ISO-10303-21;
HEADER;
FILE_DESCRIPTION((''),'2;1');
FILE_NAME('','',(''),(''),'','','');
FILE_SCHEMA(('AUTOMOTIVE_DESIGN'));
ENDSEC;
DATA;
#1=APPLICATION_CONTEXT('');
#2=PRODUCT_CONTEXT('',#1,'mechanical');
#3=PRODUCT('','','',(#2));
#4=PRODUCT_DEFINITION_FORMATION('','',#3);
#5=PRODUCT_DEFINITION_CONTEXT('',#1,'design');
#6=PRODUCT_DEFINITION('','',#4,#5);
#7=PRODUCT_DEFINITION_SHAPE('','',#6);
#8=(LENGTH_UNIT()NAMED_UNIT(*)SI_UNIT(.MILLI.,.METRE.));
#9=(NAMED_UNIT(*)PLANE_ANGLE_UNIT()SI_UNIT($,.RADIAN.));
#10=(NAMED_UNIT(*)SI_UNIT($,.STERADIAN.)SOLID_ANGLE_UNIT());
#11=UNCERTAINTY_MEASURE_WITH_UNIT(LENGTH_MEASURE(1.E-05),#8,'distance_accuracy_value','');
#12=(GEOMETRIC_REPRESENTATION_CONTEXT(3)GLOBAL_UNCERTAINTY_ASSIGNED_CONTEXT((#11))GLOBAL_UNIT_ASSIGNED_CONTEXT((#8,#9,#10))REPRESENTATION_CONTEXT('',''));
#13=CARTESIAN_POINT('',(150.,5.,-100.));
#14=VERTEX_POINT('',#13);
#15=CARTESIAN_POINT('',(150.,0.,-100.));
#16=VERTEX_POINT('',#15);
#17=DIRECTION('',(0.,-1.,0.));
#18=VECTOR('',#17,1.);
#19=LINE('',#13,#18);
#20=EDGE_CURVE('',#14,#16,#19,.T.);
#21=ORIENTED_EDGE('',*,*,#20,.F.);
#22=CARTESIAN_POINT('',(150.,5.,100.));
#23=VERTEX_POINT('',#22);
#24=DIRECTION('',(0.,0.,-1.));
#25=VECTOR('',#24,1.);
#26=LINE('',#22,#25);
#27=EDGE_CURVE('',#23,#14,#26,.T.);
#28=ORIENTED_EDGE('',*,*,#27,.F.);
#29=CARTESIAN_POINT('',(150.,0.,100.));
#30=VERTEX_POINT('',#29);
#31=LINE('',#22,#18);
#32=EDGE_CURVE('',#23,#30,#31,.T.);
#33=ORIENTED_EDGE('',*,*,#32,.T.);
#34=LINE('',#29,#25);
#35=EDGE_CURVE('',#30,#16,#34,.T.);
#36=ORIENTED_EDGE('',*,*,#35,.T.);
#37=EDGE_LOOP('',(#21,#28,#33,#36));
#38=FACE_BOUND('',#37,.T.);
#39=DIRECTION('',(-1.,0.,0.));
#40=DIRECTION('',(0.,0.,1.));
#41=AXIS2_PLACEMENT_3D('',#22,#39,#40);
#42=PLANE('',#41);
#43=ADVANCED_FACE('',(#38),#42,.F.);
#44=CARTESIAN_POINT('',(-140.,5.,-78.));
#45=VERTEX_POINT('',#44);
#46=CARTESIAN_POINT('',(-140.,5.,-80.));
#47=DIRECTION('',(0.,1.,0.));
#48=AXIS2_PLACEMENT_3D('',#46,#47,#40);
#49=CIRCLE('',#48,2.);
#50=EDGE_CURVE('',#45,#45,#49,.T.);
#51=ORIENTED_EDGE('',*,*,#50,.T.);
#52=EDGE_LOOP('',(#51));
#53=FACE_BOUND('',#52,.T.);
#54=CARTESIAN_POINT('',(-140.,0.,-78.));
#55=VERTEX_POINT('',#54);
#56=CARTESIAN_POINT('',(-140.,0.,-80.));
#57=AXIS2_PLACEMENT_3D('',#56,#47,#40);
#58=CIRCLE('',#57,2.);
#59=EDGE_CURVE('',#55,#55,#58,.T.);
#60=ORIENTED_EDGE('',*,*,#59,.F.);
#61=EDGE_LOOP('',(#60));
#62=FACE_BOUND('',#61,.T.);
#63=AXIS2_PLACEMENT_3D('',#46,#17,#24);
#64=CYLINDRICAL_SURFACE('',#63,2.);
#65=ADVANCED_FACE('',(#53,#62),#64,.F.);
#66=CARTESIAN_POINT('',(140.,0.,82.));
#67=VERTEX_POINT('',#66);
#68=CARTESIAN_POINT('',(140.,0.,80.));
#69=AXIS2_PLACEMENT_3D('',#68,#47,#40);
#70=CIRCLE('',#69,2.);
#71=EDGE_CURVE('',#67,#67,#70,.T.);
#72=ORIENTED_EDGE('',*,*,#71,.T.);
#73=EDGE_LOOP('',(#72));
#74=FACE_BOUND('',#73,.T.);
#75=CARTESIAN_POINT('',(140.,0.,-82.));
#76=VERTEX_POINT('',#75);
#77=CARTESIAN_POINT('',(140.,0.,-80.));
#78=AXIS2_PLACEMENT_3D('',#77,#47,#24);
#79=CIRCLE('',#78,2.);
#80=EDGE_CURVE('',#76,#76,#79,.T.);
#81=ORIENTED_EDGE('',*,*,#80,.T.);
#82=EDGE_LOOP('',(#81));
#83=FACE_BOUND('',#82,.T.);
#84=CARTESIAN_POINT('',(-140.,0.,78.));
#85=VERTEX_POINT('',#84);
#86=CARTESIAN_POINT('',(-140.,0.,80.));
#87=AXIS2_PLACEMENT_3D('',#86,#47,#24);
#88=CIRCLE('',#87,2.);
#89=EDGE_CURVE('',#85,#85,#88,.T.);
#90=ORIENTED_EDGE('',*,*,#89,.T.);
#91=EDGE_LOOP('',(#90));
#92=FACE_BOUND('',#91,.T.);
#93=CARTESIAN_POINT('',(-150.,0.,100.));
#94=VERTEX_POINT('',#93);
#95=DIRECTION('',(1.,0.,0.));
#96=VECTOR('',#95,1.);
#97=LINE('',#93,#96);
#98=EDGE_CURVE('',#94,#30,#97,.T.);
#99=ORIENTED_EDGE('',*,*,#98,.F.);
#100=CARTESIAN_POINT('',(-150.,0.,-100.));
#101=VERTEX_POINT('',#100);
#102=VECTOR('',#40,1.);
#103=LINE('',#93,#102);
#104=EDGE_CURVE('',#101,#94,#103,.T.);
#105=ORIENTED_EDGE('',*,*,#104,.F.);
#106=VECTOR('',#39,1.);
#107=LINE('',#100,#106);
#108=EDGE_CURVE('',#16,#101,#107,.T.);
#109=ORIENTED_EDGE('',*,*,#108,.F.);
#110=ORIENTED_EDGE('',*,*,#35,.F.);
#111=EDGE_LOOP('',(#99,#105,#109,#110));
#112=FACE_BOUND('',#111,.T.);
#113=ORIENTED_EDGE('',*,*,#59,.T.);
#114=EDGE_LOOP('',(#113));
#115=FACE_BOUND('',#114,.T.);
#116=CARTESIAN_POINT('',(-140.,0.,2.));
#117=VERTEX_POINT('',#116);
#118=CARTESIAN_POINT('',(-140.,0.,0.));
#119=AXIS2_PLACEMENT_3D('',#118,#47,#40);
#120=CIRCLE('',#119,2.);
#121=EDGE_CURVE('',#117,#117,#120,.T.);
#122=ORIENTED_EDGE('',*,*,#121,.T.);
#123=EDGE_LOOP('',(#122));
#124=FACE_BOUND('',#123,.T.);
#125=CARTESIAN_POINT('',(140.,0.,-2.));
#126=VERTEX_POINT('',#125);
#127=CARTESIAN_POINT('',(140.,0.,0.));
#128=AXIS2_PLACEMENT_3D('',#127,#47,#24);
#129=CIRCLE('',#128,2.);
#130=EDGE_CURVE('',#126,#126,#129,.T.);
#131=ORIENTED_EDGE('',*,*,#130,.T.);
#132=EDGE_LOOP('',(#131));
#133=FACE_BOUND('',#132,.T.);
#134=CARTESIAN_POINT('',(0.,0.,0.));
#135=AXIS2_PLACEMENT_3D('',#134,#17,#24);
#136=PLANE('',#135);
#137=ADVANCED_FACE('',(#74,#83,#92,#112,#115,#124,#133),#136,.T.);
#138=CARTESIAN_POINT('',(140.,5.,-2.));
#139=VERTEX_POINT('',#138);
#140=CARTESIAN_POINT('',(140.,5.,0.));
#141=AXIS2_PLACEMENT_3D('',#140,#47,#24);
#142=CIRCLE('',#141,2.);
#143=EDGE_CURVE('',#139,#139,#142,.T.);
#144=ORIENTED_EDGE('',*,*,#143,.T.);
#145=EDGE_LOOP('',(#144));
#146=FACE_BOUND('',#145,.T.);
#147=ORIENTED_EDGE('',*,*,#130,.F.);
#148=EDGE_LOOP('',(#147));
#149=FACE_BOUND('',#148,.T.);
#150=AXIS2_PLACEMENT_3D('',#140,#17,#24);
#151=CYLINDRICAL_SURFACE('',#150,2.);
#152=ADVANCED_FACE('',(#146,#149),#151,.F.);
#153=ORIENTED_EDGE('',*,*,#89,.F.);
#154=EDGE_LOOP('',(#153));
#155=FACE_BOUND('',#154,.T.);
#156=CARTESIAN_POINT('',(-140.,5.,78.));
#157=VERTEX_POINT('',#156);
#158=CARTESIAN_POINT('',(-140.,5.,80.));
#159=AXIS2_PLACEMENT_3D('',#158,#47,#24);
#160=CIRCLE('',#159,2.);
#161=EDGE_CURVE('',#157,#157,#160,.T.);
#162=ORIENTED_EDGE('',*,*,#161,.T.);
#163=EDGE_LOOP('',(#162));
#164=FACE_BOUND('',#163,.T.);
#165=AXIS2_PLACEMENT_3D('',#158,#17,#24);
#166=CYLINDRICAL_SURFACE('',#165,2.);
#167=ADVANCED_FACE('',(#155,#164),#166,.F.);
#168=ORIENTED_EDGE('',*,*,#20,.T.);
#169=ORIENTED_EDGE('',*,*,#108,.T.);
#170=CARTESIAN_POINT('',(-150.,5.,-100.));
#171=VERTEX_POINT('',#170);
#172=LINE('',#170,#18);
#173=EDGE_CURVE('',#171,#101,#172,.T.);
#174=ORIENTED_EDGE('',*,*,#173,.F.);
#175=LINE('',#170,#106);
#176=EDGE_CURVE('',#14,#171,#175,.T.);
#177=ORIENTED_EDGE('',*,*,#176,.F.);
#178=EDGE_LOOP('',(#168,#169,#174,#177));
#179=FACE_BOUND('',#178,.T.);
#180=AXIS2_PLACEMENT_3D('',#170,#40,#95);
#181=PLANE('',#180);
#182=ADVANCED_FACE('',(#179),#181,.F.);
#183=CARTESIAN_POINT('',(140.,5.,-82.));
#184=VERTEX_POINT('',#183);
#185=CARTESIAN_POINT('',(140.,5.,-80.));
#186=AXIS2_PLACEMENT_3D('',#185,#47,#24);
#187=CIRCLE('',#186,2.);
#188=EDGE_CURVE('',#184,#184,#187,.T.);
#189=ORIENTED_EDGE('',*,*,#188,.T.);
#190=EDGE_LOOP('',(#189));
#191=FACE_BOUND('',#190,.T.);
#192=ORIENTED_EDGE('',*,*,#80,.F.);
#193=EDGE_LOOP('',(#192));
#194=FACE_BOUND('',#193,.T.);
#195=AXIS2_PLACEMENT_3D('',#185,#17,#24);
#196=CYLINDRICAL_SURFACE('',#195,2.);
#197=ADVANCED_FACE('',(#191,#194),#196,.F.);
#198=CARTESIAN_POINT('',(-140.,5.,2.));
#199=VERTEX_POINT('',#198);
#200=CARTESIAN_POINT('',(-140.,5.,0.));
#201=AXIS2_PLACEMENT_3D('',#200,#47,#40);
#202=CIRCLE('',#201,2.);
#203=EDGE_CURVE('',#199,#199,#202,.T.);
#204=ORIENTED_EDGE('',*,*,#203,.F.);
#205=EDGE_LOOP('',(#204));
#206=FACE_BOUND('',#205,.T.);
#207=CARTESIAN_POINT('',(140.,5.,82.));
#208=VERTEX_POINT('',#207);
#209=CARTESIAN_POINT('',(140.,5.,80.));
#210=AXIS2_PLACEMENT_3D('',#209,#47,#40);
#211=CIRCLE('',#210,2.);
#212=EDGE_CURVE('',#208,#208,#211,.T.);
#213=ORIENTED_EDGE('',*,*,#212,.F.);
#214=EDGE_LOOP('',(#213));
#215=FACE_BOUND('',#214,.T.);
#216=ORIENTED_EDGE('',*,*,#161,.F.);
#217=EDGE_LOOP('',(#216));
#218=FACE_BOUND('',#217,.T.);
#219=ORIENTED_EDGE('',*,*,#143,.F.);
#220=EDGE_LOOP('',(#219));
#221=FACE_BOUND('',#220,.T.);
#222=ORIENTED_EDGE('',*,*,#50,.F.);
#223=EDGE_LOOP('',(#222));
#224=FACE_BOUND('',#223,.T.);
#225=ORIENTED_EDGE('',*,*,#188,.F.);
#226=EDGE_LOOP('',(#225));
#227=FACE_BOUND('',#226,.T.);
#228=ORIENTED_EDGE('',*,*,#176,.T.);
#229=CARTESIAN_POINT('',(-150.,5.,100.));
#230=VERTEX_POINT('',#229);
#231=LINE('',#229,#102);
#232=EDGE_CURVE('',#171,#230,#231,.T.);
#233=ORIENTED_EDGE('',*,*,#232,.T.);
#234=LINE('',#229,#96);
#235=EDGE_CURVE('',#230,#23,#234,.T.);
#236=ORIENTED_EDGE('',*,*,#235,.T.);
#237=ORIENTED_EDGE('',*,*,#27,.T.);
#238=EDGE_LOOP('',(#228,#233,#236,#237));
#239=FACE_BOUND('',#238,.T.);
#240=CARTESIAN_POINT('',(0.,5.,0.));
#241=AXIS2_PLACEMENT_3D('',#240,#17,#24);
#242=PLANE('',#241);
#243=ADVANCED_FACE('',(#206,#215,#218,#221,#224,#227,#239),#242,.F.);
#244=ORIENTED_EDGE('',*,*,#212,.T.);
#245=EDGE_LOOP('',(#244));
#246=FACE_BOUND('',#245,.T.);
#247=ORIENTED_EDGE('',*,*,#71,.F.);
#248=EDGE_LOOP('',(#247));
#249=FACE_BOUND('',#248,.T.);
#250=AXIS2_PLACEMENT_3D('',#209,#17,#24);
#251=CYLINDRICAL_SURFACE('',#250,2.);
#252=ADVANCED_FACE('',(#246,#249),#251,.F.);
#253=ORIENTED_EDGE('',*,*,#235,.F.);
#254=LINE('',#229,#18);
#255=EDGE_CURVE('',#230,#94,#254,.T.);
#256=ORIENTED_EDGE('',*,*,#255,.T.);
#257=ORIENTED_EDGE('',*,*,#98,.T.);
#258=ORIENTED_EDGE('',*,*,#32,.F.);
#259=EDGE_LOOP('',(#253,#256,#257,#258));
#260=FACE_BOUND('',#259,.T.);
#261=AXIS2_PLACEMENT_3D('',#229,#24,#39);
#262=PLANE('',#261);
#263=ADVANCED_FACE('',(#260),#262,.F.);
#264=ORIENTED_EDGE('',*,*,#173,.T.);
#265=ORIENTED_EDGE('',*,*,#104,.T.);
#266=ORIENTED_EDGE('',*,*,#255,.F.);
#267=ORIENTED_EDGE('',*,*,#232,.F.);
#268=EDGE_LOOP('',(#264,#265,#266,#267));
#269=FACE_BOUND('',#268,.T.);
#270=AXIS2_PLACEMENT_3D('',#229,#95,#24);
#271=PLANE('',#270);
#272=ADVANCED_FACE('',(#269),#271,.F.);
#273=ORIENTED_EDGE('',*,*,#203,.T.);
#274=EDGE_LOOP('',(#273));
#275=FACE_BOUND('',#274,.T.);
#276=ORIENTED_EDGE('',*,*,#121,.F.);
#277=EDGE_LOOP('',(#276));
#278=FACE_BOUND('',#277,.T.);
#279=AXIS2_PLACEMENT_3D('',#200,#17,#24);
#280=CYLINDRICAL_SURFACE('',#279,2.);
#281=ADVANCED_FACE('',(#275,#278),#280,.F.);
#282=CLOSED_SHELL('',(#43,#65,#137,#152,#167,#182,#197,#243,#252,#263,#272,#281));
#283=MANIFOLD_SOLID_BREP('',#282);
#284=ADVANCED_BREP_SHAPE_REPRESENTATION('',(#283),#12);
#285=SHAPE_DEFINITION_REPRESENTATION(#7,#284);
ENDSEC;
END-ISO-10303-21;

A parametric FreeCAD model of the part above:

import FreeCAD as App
import Part
import Sketcher
Q = App.Units.Quantity


def add_polygon(sketch, points):
    """Adds a closed chain of lines whose ends are joined by coincident constraints."""
    first, n = sketch.GeometryCount, len(points)
    for a, b in zip(points, points[1:] + points[:1]):
        sketch.addGeometry(Part.LineSegment(App.Vector(*a, 0), App.Vector(*b, 0)), False)
    for i in range(n):
        sketch.addConstraint(Sketcher.Constraint("Coincident", first + i, 2, first + (i + 1) % n, 1))

doc = App.newDocument("Part")
body = doc.addObject("PartDesign::Body", "Body")

sketch1 = body.newObject("Sketcher::SketchObject", "Sketch")
sketch1.AttachmentSupport = (doc.getObject("XZ_Plane"), [""])
sketch1.MapMode = "FlatFace"
add_polygon(sketch1, [(-150, -100), (-150, 100), (150, 100), (150, -100)])
sketch1.addGeometry(Part.Circle(App.Vector(-140, 80, 0), App.Vector(0, 0, 1), 2), False)
sketch1.addGeometry(Part.Circle(App.Vector(140, 80, 0), App.Vector(0, 0, 1), 2), False)
sketch1.addGeometry(Part.Circle(App.Vector(-140, 0, 0), App.Vector(0, 0, 1), 2), False)
sketch1.addGeometry(Part.Circle(App.Vector(-140, -80, 0), App.Vector(0, 0, 1), 2), False)
sketch1.addGeometry(Part.Circle(App.Vector(140, 0, 0), App.Vector(0, 0, 1), 2), False)
sketch1.addGeometry(Part.Circle(App.Vector(140, -80, 0), App.Vector(0, 0, 1), 2), False)
sketch1.addConstraint([
    Sketcher.Constraint("Vertical", 0),
    Sketcher.Constraint("Horizontal", 1),
    Sketcher.Constraint("Vertical", 2),
    Sketcher.Constraint("Horizontal", 3),
    Sketcher.Constraint("Equal", 4, 5),
    Sketcher.Constraint("Equal", 5, 6),
    Sketcher.Constraint("Equal", 6, 7),
    Sketcher.Constraint("Equal", 7, 8),
    Sketcher.Constraint("Equal", 8, 9),
    Sketcher.Constraint("Symmetric", 5, 3, 7, 3, -1, 1),
    Sketcher.Constraint("Symmetric", 6, 3, 8, 3, -1, 1),
    Sketcher.Constraint("Symmetric", 4, 3, 9, 3, -1, 1),
    Sketcher.Constraint("Symmetric", 0, 2, 2, 2, -1, 1),
    Sketcher.Constraint("Symmetric", 4, 3, 5, 3, -2),
    Sketcher.Constraint("PointOnObject", 6, 3, -1),
    Sketcher.Constraint("Vertical", 4, 3, 6, 3),
    Sketcher.Constraint("Diameter", 4, Q("4 mm")),
    Sketcher.Constraint("DistanceX", 1, 1, 1, 2, Q("300 mm")),
    Sketcher.Constraint("DistanceY", 0, 1, 0, 2, Q("200 mm")),
    Sketcher.Constraint("DistanceX", 4, 3, -1, 1, Q("140 mm")),
    Sketcher.Constraint("DistanceY", -1, 1, 4, 3, Q("80 mm")),
])
pad1 = body.newObject("PartDesign::Pad", "Pad")
pad1.Profile = sketch1
pad1.Length = 5
pad1.Reversed = True

doc.recompute()
